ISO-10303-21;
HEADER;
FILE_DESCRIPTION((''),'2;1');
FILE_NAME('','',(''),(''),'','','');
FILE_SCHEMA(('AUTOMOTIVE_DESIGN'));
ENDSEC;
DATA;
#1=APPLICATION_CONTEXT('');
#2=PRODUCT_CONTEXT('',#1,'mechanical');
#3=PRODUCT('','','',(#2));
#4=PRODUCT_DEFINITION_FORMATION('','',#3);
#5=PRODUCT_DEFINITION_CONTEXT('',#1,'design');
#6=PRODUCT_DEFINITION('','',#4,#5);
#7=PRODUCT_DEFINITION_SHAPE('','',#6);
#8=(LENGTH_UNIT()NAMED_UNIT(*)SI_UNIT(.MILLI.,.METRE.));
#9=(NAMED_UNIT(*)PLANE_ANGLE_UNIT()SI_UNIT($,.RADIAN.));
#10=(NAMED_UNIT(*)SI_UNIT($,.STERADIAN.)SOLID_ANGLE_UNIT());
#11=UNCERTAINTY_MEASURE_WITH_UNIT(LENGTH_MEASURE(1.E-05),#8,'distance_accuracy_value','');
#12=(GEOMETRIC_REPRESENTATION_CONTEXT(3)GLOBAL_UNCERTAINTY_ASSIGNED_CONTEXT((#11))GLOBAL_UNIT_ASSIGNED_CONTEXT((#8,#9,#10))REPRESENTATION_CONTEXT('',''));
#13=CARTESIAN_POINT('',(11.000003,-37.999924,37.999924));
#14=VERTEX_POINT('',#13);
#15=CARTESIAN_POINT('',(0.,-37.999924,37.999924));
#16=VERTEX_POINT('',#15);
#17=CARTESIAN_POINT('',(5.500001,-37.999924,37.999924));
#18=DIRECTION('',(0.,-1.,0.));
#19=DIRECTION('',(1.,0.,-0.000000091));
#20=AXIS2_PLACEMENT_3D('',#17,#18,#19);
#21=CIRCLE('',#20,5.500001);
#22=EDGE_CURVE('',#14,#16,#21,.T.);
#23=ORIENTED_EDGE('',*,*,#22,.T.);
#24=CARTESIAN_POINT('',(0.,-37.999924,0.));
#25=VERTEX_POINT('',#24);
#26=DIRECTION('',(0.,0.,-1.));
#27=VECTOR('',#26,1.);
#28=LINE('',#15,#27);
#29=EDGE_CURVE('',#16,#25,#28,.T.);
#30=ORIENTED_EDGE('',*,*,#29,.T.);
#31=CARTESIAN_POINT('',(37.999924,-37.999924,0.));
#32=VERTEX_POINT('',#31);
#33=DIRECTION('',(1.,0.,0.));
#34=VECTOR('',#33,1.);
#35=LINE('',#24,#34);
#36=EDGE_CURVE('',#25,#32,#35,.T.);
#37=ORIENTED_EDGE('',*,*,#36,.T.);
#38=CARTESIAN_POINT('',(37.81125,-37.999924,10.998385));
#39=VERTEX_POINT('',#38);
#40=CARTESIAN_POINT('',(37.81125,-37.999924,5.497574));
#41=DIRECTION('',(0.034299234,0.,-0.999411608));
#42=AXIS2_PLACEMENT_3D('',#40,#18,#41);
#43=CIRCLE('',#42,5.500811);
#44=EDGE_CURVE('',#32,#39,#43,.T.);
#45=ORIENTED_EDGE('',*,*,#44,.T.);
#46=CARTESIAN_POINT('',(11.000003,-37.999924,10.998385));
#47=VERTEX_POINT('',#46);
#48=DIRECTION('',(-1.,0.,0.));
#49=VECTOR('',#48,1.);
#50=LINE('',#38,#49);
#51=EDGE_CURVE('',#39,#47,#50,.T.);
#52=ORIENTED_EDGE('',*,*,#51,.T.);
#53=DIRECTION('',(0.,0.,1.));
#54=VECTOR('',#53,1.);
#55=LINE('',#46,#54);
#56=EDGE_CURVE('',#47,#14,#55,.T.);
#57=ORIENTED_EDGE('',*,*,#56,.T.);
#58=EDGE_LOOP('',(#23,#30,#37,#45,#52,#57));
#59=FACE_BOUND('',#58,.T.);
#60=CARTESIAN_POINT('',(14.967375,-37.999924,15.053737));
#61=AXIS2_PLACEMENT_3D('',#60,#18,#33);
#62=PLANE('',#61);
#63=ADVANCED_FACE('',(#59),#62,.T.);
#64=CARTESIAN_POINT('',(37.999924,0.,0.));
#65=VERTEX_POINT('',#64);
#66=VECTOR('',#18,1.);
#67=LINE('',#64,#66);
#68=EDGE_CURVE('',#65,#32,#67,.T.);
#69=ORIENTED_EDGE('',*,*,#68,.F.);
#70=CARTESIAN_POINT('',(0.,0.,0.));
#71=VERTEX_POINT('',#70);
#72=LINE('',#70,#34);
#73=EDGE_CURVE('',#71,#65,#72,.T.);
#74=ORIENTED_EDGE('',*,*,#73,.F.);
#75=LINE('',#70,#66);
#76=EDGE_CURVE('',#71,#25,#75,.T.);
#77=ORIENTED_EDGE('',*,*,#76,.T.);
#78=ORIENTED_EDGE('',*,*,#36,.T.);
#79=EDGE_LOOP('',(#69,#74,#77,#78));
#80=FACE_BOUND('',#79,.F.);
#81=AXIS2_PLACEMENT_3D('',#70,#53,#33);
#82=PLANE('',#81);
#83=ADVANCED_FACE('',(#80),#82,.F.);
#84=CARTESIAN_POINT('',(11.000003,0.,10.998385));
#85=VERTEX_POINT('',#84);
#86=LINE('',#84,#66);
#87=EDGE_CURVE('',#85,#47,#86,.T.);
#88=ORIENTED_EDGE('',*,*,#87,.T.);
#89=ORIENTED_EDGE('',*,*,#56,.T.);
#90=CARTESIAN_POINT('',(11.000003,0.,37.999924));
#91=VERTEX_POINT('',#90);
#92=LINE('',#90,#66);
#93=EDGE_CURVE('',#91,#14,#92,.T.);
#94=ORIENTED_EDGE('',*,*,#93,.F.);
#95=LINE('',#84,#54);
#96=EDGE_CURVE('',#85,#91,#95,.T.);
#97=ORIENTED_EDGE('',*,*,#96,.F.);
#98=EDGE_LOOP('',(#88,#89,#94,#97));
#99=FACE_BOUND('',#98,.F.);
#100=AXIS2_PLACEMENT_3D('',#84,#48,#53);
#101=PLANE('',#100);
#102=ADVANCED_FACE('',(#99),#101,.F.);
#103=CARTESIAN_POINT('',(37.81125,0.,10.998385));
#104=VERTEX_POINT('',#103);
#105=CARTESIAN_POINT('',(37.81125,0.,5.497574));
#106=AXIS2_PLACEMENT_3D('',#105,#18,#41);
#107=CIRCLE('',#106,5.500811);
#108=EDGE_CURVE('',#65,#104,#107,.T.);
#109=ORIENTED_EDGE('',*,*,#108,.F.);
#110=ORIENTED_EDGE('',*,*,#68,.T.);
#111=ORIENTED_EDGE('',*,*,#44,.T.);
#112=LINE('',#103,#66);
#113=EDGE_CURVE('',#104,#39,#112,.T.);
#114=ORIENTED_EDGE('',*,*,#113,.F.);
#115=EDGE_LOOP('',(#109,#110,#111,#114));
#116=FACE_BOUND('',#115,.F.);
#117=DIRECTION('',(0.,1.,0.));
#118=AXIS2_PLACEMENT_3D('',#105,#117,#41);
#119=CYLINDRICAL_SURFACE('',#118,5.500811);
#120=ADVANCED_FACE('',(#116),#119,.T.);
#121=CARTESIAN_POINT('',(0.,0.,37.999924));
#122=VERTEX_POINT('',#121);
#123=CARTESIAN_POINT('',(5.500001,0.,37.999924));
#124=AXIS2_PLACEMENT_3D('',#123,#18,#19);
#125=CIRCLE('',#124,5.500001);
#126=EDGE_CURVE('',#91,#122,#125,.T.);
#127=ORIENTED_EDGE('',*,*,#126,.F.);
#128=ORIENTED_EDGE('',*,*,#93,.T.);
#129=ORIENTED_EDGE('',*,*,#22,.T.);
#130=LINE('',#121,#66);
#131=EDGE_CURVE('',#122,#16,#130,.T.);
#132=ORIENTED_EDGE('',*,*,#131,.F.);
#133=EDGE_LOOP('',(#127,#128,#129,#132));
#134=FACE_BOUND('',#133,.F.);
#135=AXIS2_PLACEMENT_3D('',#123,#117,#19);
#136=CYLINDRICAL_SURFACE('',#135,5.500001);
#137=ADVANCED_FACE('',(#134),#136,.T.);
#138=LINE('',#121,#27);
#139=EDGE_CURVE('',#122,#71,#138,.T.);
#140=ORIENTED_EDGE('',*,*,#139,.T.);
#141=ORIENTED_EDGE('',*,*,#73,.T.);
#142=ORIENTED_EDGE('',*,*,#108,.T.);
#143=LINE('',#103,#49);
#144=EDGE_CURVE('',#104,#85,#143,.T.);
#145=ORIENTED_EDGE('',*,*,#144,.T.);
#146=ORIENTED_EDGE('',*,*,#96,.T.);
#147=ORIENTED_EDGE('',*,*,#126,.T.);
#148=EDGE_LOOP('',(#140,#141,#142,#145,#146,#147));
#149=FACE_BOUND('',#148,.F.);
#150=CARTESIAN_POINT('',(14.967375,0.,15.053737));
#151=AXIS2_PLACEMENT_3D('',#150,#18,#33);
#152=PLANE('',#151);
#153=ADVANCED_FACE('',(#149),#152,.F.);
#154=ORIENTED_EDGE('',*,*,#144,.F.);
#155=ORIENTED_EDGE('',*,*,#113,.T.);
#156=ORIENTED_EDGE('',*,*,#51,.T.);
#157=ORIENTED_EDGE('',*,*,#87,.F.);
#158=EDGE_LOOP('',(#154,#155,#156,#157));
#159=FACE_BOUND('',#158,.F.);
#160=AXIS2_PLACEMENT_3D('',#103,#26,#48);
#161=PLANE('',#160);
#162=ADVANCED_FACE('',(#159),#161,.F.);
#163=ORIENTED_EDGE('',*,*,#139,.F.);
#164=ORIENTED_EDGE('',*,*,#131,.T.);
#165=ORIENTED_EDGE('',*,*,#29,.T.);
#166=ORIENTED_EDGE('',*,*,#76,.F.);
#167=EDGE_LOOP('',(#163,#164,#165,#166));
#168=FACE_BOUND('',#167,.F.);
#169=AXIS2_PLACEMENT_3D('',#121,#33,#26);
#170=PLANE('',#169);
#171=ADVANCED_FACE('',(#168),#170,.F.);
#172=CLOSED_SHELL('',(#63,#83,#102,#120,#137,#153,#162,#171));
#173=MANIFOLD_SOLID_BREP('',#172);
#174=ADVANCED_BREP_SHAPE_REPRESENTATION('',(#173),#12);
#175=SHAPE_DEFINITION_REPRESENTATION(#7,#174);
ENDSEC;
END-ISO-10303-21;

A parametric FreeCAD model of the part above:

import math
import FreeCAD as App
import Part
import Sketcher
from FreeCAD import Vector

doc = App.newDocument("Part")
body = doc.addObject("PartDesign::Body", "Body")

# Sketch on XZ plane
sketch1 = doc.addObject("Sketcher::SketchObject", "Sketch")
body.addObject(sketch1)
sketch1.AttachmentSupport = (doc.XZ_Plane, [""])
sketch1.MapMode = "FlatFace"
sketch1.addGeometry(Part.LineSegment(Vector(0, 38, 0), Vector(0, 0, 0)), False)
sketch1.addGeometry(Part.LineSegment(Vector(0, 0, 0), Vector(38, 0, 0)), False)
sketch1.addGeometry(Part.ArcOfCircle(Part.Circle(Vector(38, 5, 0), Vector(0, 0, 1), 6), math.radians(-88), math.radians(90)), False)
sketch1.addGeometry(Part.LineSegment(Vector(38, 11, 0), Vector(11, 11, 0)), False)
sketch1.addGeometry(Part.LineSegment(Vector(11, 11, 0), Vector(11, 38, 0)), False)
sketch1.addGeometry(Part.ArcOfCircle(Part.Circle(Vector(6, 38, 0), Vector(0, 0, 1), 6), math.radians(0), math.radians(180)), False)
sketch1.addConstraint(Sketcher.Constraint("Coincident", 0, 2, 1, 1))
sketch1.addConstraint(Sketcher.Constraint("Coincident", 1, 2, 2, 1))
sketch1.addConstraint(Sketcher.Constraint("Tangent", 2, 2, 3, 1))
sketch1.addConstraint(Sketcher.Constraint("Coincident", 3, 2, 4, 1))
sketch1.addConstraint(Sketcher.Constraint("Tangent", 4, 2, 5, 1))
sketch1.addConstraint(Sketcher.Constraint("Tangent", 5, 2, 0, 1))
sketch1.addConstraint(Sketcher.Constraint("Vertical", 0))
sketch1.addConstraint(Sketcher.Constraint("Horizontal", 1))
sketch1.addConstraint(Sketcher.Constraint("Horizontal", 3))
sketch1.addConstraint(Sketcher.Constraint("Vertical", 4))
sketch1.addConstraint(Sketcher.Constraint("Coincident", 0, 2, -1, 1))
sketch1.addConstraint(Sketcher.Constraint("Equal", 1, 0))
sketch1.addConstraint(Sketcher.Constraint("Radius", 5, 5.500001))
sketch1.addConstraint(Sketcher.Constraint("Radius", 2, 5.500811))
sketch1.addConstraint(Sketcher.Constraint("DistanceY", 4, 1, 4, 2, 27.001539))
sketch1.addConstraint(Sketcher.Constraint("DistanceX", 1, 1, 1, 2, 37.999924))
pad1 = doc.addObject("PartDesign::Pad", "Pad")
body.addObject(pad1)
pad1.Profile = sketch1
pad1.Length = 37.999924

doc.recompute()
